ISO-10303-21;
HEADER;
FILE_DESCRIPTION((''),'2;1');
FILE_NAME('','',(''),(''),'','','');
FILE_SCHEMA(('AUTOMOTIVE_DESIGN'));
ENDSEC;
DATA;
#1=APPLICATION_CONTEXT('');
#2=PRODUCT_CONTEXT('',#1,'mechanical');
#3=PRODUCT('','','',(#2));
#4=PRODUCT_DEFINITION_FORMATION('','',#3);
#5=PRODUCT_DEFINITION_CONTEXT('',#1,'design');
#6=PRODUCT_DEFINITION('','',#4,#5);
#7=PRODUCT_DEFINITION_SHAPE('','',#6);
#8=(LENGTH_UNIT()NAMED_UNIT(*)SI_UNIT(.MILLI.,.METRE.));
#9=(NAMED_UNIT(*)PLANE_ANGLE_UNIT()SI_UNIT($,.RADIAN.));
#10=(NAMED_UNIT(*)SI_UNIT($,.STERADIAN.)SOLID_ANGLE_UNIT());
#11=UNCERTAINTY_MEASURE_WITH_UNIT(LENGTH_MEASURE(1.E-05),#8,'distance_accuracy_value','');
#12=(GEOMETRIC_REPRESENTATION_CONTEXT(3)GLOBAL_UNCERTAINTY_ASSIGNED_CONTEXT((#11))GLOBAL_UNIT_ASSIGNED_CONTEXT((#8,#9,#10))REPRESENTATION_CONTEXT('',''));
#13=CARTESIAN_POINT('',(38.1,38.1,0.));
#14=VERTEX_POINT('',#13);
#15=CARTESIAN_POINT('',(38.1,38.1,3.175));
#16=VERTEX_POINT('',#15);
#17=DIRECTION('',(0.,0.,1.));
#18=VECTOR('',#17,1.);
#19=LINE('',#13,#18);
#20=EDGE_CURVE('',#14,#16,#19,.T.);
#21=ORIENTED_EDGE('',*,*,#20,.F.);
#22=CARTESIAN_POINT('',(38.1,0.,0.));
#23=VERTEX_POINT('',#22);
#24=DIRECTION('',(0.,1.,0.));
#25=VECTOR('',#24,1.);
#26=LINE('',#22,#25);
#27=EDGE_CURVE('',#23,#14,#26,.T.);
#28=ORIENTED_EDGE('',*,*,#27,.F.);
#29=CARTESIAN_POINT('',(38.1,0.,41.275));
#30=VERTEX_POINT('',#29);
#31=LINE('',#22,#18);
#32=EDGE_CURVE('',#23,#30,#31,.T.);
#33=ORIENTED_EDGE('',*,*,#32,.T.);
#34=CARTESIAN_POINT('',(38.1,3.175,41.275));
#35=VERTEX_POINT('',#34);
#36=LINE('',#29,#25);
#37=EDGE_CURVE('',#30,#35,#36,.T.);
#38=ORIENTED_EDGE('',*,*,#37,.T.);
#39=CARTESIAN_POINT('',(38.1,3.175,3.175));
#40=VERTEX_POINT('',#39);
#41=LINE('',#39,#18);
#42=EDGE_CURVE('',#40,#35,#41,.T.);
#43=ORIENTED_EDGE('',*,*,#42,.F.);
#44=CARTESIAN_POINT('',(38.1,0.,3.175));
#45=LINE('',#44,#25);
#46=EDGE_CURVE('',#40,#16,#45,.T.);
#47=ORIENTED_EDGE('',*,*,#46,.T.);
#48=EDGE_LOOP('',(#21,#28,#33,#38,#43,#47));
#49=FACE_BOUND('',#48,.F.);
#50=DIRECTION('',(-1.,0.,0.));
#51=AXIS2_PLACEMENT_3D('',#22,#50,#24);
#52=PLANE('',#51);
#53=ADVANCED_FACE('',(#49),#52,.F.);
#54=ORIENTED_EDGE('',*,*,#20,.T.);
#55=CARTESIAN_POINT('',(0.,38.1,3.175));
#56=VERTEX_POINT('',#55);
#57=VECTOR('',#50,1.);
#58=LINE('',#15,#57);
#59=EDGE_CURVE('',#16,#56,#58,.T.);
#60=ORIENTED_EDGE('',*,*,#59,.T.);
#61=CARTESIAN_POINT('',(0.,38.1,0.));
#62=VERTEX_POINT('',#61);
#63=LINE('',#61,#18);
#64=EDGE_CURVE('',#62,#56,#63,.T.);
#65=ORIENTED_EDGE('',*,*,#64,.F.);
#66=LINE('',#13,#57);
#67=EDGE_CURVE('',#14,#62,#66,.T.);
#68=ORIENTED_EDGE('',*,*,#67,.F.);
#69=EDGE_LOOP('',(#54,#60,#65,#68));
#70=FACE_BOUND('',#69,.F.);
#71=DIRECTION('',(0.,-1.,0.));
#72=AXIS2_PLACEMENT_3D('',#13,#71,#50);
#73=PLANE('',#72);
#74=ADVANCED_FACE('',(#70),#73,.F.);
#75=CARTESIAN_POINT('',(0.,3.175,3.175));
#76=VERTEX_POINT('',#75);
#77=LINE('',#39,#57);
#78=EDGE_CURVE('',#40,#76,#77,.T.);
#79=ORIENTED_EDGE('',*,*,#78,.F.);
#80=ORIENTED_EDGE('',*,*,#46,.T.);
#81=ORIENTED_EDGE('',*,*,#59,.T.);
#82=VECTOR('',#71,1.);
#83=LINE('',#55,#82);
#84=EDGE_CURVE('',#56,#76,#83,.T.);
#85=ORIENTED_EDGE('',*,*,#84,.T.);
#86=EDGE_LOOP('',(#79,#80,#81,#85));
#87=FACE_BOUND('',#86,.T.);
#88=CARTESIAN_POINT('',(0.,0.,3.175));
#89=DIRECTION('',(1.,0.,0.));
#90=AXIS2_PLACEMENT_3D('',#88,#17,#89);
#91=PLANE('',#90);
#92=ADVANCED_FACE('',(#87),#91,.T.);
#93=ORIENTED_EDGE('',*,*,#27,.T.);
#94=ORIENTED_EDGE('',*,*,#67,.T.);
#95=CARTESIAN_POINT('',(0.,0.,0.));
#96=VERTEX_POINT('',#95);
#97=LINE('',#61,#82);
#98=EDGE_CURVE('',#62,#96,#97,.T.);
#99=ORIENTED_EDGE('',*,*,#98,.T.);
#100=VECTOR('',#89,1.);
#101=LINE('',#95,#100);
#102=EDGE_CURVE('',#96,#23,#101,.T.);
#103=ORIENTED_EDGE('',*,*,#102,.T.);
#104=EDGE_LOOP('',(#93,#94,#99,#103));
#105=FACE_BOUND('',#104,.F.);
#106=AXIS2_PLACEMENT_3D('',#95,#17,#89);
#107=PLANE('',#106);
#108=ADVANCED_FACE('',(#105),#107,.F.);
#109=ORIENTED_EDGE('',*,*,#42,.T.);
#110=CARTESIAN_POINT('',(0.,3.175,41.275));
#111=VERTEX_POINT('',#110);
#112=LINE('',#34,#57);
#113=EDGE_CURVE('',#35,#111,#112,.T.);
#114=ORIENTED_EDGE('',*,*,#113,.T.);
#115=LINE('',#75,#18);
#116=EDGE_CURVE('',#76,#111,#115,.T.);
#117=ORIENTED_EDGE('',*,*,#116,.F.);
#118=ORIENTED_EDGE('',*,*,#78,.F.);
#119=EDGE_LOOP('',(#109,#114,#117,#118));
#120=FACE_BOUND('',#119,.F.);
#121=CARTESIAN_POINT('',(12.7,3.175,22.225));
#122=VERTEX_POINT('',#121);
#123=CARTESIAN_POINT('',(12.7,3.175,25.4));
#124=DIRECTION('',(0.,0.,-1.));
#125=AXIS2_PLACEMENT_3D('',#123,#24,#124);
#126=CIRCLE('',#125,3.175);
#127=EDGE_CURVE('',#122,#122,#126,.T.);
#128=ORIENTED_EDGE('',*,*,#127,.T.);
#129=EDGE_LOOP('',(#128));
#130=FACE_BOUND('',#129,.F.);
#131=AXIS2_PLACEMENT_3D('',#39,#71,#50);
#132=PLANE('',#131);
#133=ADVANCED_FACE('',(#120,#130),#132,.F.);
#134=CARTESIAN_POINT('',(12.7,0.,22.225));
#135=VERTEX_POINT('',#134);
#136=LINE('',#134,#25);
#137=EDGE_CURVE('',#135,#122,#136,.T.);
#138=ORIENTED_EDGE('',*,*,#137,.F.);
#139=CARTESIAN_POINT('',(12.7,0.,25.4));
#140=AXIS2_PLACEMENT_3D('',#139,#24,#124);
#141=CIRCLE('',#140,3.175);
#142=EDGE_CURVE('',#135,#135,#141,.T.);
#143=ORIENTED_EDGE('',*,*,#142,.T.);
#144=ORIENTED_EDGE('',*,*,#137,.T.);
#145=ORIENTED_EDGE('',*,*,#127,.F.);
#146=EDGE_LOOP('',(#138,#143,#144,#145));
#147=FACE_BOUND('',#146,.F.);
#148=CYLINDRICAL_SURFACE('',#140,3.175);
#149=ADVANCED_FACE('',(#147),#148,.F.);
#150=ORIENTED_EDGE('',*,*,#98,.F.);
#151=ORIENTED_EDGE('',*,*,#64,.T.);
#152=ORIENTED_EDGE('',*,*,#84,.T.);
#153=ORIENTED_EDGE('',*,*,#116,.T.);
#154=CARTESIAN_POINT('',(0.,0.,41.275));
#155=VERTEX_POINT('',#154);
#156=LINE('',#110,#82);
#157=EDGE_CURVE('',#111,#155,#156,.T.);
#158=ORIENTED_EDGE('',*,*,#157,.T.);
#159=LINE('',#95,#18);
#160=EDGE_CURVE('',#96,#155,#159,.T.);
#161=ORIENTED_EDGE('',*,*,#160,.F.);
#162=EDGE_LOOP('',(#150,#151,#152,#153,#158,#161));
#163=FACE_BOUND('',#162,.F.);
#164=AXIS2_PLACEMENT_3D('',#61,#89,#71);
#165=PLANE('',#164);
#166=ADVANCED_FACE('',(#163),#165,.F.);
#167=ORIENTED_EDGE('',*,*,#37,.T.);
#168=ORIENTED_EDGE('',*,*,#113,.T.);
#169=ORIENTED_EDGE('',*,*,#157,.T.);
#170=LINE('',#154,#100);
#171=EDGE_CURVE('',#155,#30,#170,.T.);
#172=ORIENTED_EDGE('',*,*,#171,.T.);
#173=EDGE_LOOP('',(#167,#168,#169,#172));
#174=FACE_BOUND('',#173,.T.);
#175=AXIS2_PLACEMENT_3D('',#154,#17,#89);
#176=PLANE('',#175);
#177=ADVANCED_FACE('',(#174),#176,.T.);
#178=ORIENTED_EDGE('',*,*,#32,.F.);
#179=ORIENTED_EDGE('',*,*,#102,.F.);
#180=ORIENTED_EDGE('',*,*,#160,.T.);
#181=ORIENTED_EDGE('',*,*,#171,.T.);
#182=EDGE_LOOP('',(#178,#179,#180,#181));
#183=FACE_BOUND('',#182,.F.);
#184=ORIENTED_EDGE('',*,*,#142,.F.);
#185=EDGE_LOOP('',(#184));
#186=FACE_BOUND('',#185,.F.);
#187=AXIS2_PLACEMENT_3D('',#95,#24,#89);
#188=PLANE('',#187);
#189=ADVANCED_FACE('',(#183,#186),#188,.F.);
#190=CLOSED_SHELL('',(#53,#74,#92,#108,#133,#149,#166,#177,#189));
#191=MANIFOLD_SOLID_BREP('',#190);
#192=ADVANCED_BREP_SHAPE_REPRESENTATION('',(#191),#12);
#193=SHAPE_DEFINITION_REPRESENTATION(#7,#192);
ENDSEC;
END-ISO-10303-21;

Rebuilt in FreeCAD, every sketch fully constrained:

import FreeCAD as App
import Part
import Sketcher

V = App.Vector
Q = App.Units.Quantity

doc = App.newDocument("Part")
body = doc.addObject("PartDesign::Body", "Body")

# Sketch on XY plane
sketch1 = doc.addObject("Sketcher::SketchObject", "Sketch")
body.addObject(sketch1)
sketch1.AttachmentSupport = (doc.XY_Plane, [""])
sketch1.MapMode = "FlatFace"
sketch1.addGeometry(Part.LineSegment(V(0, 38, 0), V(0, 0, 0)), False)
sketch1.addGeometry(Part.LineSegment(V(0, 0, 0), V(38, 0, 0)), False)
sketch1.addGeometry(Part.LineSegment(V(38, 0, 0), V(38, 38, 0)), False)
sketch1.addGeometry(Part.LineSegment(V(38, 38, 0), V(0, 38, 0)), False)
sketch1.addConstraint(Sketcher.Constraint("Coincident", 0, 2, 1, 1))
sketch1.addConstraint(Sketcher.Constraint("Coincident", 1, 2, 2, 1))
sketch1.addConstraint(Sketcher.Constraint("Coincident", 2, 2, 3, 1))
sketch1.addConstraint(Sketcher.Constraint("Coincident", 3, 2, 0, 1))
sketch1.addConstraint(Sketcher.Constraint("Vertical", 0))
sketch1.addConstraint(Sketcher.Constraint("Horizontal", 1))
sketch1.addConstraint(Sketcher.Constraint("Vertical", 2))
sketch1.addConstraint(Sketcher.Constraint("Horizontal", 3))
sketch1.addConstraint(Sketcher.Constraint("Coincident", 0, 2, -1, 1))
sketch1.addConstraint(Sketcher.Constraint("Equal", 3, 0))
sketch1.addConstraint(Sketcher.Constraint("DistanceX", 1, 1, 1, 2, Q("1.5 in")))
pad1 = doc.addObject("PartDesign::Pad", "Pad")
body.addObject(pad1)
pad1.Profile = sketch1
pad1.Length = Q("0.125 in")

# Sketch on XY plane
sketch2 = doc.addObject("Sketcher::SketchObject", "Sketch001")
body.addObject(sketch2)
sketch2.AttachmentSupport = (doc.XY_Plane, [""])
sketch2.MapMode = "FlatFace"
sketch2.AttachmentOffset = App.Placement(V(0, 0, 0.125 * 25.4), App.Rotation())
sketch2.addGeometry(Part.LineSegment(V(0, 3.2, 0), V(0, 0, 0)), False)
sketch2.addGeometry(Part.LineSegment(V(0, 0, 0), V(38.1, 0, 0)), False)
sketch2.addGeometry(Part.LineSegment(V(38.1, 0, 0), V(38.1, 3.2, 0)), False)
sketch2.addGeometry(Part.LineSegment(V(38.1, 3.2, 0), V(0, 3.2, 0)), False)
sketch2.addConstraint(Sketcher.Constraint("Coincident", 0, 2, 1, 1))
sketch2.addConstraint(Sketcher.Constraint("Coincident", 1, 2, 2, 1))
sketch2.addConstraint(Sketcher.Constraint("Coincident", 2, 2, 3, 1))
sketch2.addConstraint(Sketcher.Constraint("Coincident", 3, 2, 0, 1))
sketch2.addConstraint(Sketcher.Constraint("Vertical", 0))
sketch2.addConstraint(Sketcher.Constraint("Horizontal", 1))
sketch2.addConstraint(Sketcher.Constraint("Vertical", 2))
sketch2.addConstraint(Sketcher.Constraint("Horizontal", 3))
sketch2.addConstraint(Sketcher.Constraint("Coincident", 0, 2, -1, 1))
sketch2.addConstraint(Sketcher.Constraint("DistanceY", 0, 2, 0, 1, Q("0.125 in")))
sketch2.addConstraint(Sketcher.Constraint("DistanceX", 1, 1, 1, 2, Q("1.5 in")))
pad2 = doc.addObject("PartDesign::Pad", "Pad001")
body.addObject(pad2)
pad2.Profile = sketch2
pad2.Length = Q("1.5 in")

# Sketch on XZ plane
sketch3 = doc.addObject("Sketcher::SketchObject", "Sketch002")
body.addObject(sketch3)
sketch3.AttachmentSupport = (doc.XZ_Plane, [""])
sketch3.MapMode = "FlatFace"
sketch3.addGeometry(Part.Circle(V(12.7, 25.4, 0), V(0, 0, 1), 3.2), False)
sketch3.addConstraint(Sketcher.Constraint("Diameter", 0, Q("0.25 in")))
sketch3.addConstraint(Sketcher.Constraint("DistanceY", -1, 1, 0, 3, Q("1 in")))
sketch3.addConstraint(Sketcher.Constraint("DistanceX", -1, 1, 0, 3, Q("0.5 in")))
doc.recompute()
hole = doc.addObject("PartDesign::Hole", "Hole")
body.addObject(hole)
hole.Profile = sketch3
hole.ThreadType = "None"
hole.Diameter = Q("0.25 in")
hole.DepthType = "ThroughAll"

doc.recompute()
